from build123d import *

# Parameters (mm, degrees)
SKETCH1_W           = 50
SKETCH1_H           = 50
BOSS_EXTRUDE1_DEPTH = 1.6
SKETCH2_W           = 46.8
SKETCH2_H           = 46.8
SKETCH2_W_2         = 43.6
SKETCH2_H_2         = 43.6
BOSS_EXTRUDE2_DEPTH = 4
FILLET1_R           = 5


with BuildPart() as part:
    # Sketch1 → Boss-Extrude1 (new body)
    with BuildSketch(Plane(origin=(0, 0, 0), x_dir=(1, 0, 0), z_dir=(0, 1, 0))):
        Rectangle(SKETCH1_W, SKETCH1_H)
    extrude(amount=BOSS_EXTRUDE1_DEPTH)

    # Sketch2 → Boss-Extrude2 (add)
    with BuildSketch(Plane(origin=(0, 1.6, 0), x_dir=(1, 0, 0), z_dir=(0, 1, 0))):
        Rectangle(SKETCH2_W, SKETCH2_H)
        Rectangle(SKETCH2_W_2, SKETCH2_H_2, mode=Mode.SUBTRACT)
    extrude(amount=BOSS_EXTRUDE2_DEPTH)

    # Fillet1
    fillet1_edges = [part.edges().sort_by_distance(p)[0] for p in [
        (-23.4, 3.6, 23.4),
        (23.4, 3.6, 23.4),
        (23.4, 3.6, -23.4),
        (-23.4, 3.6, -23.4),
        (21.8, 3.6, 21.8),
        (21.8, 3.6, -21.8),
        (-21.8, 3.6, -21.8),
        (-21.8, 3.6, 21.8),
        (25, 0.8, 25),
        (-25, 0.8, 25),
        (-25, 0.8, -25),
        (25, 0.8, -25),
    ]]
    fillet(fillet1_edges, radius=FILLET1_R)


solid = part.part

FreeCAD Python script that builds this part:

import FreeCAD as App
import Part
import Sketcher

V = App.Vector
Q = App.Units.Quantity


def edges_at(feature, points):
    """Names of the edges that pass closest to the given points."""
    edges = feature.Shape.Edges
    near = lambda p: min(range(len(edges)), key=lambda i: edges[i].distToShape(Part.Vertex(*p))[0])
    return sorted({f"Edge{near(p) + 1}" for p in points})

doc = App.newDocument("Part")
body = doc.addObject("PartDesign::Body", "Body")

sketch1 = body.newObject("Sketcher::SketchObject", "Sketch")
sketch1.AttachmentSupport = (doc.getObject("XZ_Plane"), [""])
sketch1.MapMode = "FlatFace"
sketch1.addGeometry([
    Part.LineSegment(V(-25, -25, 0), V(-25, 25, 0)),
    Part.LineSegment(V(-25, 25, 0), V(25, 25, 0)),
    Part.LineSegment(V(25, 25, 0), V(25, -25, 0)),
    Part.LineSegment(V(25, -25, 0), V(-25, -25, 0)),
], False)
sketch1.addConstraint([
    Sketcher.Constraint("Coincident", 0, 2, 1, 1),
    Sketcher.Constraint("Coincident", 1, 2, 2, 1),
    Sketcher.Constraint("Coincident", 2, 2, 3, 1),
    Sketcher.Constraint("Coincident", 3, 2, 0, 1),
    Sketcher.Constraint("Vertical", 0),
    Sketcher.Constraint("Horizontal", 1),
    Sketcher.Constraint("Vertical", 2),
    Sketcher.Constraint("Horizontal", 3),
    Sketcher.Constraint("Symmetric", 0, 2, 2, 2, -1, 1),
    Sketcher.Constraint("Equal", 3, 0),
    Sketcher.Constraint("DistanceX", 1, 1, 1, 2, Q("50 mm")),
])
pad1 = body.newObject("PartDesign::Pad", "Pad")
pad1.Profile = sketch1
pad1.Length = 1.6
pad1.Reversed = True

sketch2 = body.newObject("Sketcher::SketchObject", "Sketch001")
sketch2.AttachmentSupport = (doc.getObject("XZ_Plane"), [""])
sketch2.MapMode = "FlatFace"
sketch2.AttachmentOffset = App.Placement(V(0, 0, -1.6), App.Rotation())
sketch2.addGeometry([
    Part.LineSegment(V(-23, -23, 0), V(-23, 23, 0)),
    Part.LineSegment(V(-23, 23, 0), V(23, 23, 0)),
    Part.LineSegment(V(23, 23, 0), V(23, -23, 0)),
    Part.LineSegment(V(23, -23, 0), V(-23, -23, 0)),
    Part.LineSegment(V(22, 22, 0), V(-22, 22, 0)),
    Part.LineSegment(V(-22, 22, 0), V(-22, -22, 0)),
    Part.LineSegment(V(-22, -22, 0), V(22, -22, 0)),
    Part.LineSegment(V(22, -22, 0), V(22, 22, 0)),
], False)
sketch2.addConstraint([
    Sketcher.Constraint("Coincident", 0, 2, 1, 1),
    Sketcher.Constraint("Coincident", 1, 2, 2, 1),
    Sketcher.Constraint("Coincident", 2, 2, 3, 1),
    Sketcher.Constraint("Coincident", 3, 2, 0, 1),
    Sketcher.Constraint("Coincident", 4, 2, 5, 1),
    Sketcher.Constraint("Coincident", 5, 2, 6, 1),
    Sketcher.Constraint("Coincident", 6, 2, 7, 1),
    Sketcher.Constraint("Coincident", 7, 2, 4, 1),
    Sketcher.Constraint("Vertical", 0),
    Sketcher.Constraint("Horizontal", 1),
    Sketcher.Constraint("Vertical", 2),
    Sketcher.Constraint("Horizontal", 3),
    Sketcher.Constraint("Horizontal", 4),
    Sketcher.Constraint("Vertical", 5),
    Sketcher.Constraint("Horizontal", 6),
    Sketcher.Constraint("Vertical", 7),
    Sketcher.Constraint("Symmetric", 0, 2, 2, 2, -1, 1),
    Sketcher.Constraint("Symmetric", 4, 2, 6, 2, -1, 1),
    Sketcher.Constraint("Equal", 3, 0),
    Sketcher.Constraint("Equal", 6, 5),
    Sketcher.Constraint("DistanceX", 1, 1, 1, 2, Q("46.8 mm")),
    Sketcher.Constraint("DistanceX", 4, 2, 4, 1, Q("43.6 mm")),
])
pad2 = body.newObject("PartDesign::Pad", "Pad001")
pad2.Profile = sketch2
pad2.Length = 4
pad2.Reversed = True
doc.recompute()

fillet = body.newObject("PartDesign::Fillet", "Fillet")
fillet.Base = (pad2, edges_at(pad2, [
    (-23.4, 3.6, 23.4),
    (23.4, 3.6, 23.4),
    (23.4, 3.6, -23.4),
    (-23.4, 3.6, -23.4),
    (21.8, 3.6, 21.8),
    (21.8, 3.6, -21.8),
    (-21.8, 3.6, -21.8),
    (-21.8, 3.6, 21.8),
    (25, 0.8, 25),
    (-25, 0.8, 25),
    (-25, 0.8, -25),
    (25, 0.8, -25),
]))
fillet.Radius = 5

doc.recompute()
